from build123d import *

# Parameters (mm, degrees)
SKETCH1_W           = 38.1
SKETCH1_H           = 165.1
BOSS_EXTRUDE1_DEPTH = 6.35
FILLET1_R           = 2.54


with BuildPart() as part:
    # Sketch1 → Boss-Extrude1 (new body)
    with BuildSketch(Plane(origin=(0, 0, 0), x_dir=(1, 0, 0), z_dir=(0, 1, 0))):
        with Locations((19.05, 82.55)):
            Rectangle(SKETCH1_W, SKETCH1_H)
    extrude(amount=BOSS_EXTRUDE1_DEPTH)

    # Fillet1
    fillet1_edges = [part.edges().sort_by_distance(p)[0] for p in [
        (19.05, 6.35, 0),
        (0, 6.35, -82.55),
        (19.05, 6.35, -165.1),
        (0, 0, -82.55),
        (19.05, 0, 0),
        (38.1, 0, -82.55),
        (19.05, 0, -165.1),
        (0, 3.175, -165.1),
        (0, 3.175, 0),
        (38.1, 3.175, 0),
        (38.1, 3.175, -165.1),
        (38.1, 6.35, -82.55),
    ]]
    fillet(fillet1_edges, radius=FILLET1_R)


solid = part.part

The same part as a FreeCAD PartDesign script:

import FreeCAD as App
import Part
import Sketcher

V = App.Vector
Q = App.Units.Quantity


def add_polygon(sketch, points):
    """Adds a closed chain of lines whose ends are joined by coincident constraints."""
    first, n = sketch.GeometryCount, len(points)
    for a, b in zip(points, points[1:] + points[:1]):
        sketch.addGeometry(Part.LineSegment(App.Vector(*a, 0), App.Vector(*b, 0)), False)
    for i in range(n):
        sketch.addConstraint(Sketcher.Constraint("Coincident", first + i, 2, first + (i + 1) % n, 1))

doc = App.newDocument("Part")
body = doc.addObject("PartDesign::Body", "Body")

sketch1 = body.newObject("Sketcher::SketchObject", "Sketch")
sketch1.AttachmentSupport = (doc.getObject("XZ_Plane"), [""])
sketch1.MapMode = "FlatFace"
add_polygon(sketch1, [(0, -165), (0, 0), (38, 0), (38, -165)])
sketch1.addConstraint([
    Sketcher.Constraint("Vertical", 0),
    Sketcher.Constraint("Horizontal", 1),
    Sketcher.Constraint("Vertical", 2),
    Sketcher.Constraint("Horizontal", 3),
    Sketcher.Constraint("Coincident", 0, 2, -1, 1),
    Sketcher.Constraint("DistanceX", 1, 1, 1, 2, Q("1.5 in")),
    Sketcher.Constraint("DistanceY", 0, 1, 0, 2, Q("6.5 in")),
])
pad1 = body.newObject("PartDesign::Pad", "Pad")
pad1.Profile = sketch1
pad1.Length = Q("0.25 in")
pad1.Reversed = True
doc.recompute()

fillet = body.newObject("PartDesign::Fillet", "Fillet")
fillet.Base = (pad1, ["Edge1"])
fillet.UseAllEdges = True
fillet.Radius = Q("0.1 in")

doc.recompute()
